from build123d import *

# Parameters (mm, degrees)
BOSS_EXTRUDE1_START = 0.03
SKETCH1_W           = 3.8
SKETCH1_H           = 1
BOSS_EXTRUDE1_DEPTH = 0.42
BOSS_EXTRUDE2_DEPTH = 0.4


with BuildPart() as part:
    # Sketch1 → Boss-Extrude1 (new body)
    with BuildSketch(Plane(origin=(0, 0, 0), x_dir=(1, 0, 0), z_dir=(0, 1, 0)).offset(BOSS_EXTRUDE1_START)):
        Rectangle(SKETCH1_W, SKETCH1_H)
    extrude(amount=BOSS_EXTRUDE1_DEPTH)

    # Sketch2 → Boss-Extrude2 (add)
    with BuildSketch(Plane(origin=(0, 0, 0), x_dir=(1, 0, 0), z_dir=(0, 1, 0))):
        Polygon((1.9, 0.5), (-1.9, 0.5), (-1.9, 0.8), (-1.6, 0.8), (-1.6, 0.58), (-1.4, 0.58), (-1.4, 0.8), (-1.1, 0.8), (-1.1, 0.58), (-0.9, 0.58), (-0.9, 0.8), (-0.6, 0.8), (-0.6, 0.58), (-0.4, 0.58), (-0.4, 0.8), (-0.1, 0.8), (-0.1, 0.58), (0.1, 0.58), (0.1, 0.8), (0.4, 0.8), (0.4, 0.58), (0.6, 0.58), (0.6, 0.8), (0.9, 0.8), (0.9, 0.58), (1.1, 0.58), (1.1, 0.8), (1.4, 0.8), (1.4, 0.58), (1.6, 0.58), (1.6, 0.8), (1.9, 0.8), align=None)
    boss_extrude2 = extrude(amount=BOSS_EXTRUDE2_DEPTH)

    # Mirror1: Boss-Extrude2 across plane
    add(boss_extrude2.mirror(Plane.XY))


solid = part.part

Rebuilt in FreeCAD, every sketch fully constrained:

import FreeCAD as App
import Part
import Sketcher
from FreeCAD import Vector
Q = App.Units.Quantity

doc = App.newDocument("Part")
body = doc.addObject("PartDesign::Body", "Body")

# Sketch on XZ plane
sketch1 = body.newObject("Sketcher::SketchObject", "Sketch")
sketch1.AttachmentSupport = (doc.getObject("XZ_Plane"), [""])
sketch1.MapMode = "FlatFace"
sketch1.AttachmentOffset = App.Placement(Vector(0, 0, -0.03), App.Rotation())
sketch1.addGeometry(Part.LineSegment(Vector(-1.9, -0.5, 0), Vector(-1.9, 0.5, 0)), False)
sketch1.addGeometry(Part.LineSegment(Vector(-1.9, 0.5, 0), Vector(1.9, 0.5, 0)), False)
sketch1.addGeometry(Part.LineSegment(Vector(1.9, 0.5, 0), Vector(1.9, -0.5, 0)), False)
sketch1.addGeometry(Part.LineSegment(Vector(1.9, -0.5, 0), Vector(-1.9, -0.5, 0)), False)
sketch1.addConstraint(Sketcher.Constraint("Coincident", 0, 2, 1, 1))
sketch1.addConstraint(Sketcher.Constraint("Coincident", 1, 2, 2, 1))
sketch1.addConstraint(Sketcher.Constraint("Coincident", 2, 2, 3, 1))
sketch1.addConstraint(Sketcher.Constraint("Coincident", 3, 2, 0, 1))
sketch1.addConstraint(Sketcher.Constraint("Vertical", 0))
sketch1.addConstraint(Sketcher.Constraint("Horizontal", 1))
sketch1.addConstraint(Sketcher.Constraint("Vertical", 2))
sketch1.addConstraint(Sketcher.Constraint("Horizontal", 3))
sketch1.addConstraint(Sketcher.Constraint("Symmetric", 0, 2, 2, 2, -1, 1))
sketch1.addConstraint(Sketcher.Constraint("DistanceY", 0, 1, 0, 2, Q("1 mm")))
sketch1.addConstraint(Sketcher.Constraint("DistanceX", 1, 1, 1, 2, Q("3.8 mm")))
pad1 = body.newObject("PartDesign::Pad", "Pad")
pad1.Profile = sketch1
pad1.Length = 0.42
pad1.Reversed = True

# Sketch on XZ plane
sketch2 = body.newObject("Sketcher::SketchObject", "Sketch001")
sketch2.AttachmentSupport = (doc.getObject("XZ_Plane"), [""])
sketch2.MapMode = "FlatFace"
sketch2.addGeometry(Part.LineSegment(Vector(-1.9, -0.5, 0), Vector(1.9, -0.5, 0)), False)
sketch2.addGeometry(Part.LineSegment(Vector(1.9, -0.5, 0), Vector(1.9, -0.8, 0)), False)
sketch2.addGeometry(Part.LineSegment(Vector(1.9, -0.8, 0), Vector(1.6, -0.8, 0)), False)
sketch2.addGeometry(Part.LineSegment(Vector(1.6, -0.8, 0), Vector(1.6, -0.58, 0)), False)
sketch2.addGeometry(Part.LineSegment(Vector(1.6, -0.58, 0), Vector(1.4, -0.58, 0)), False)
sketch2.addGeometry(Part.LineSegment(Vector(1.4, -0.58, 0), Vector(1.4, -0.8, 0)), False)
sketch2.addGeometry(Part.LineSegment(Vector(1.4, -0.8, 0), Vector(1.1, -0.8, 0)), False)
sketch2.addGeometry(Part.LineSegment(Vector(1.1, -0.8, 0), Vector(1.1, -0.58, 0)), False)
sketch2.addGeometry(Part.LineSegment(Vector(1.1, -0.58, 0), Vector(0.9, -0.58, 0)), False)
sketch2.addGeometry(Part.LineSegment(Vector(0.9, -0.58, 0), Vector(0.9, -0.8, 0)), False)
sketch2.addGeometry(Part.LineSegment(Vector(0.9, -0.8, 0), Vector(0.6, -0.8, 0)), False)
sketch2.addGeometry(Part.LineSegment(Vector(0.6, -0.8, 0), Vector(0.6, -0.58, 0)), False)
sketch2.addGeometry(Part.LineSegment(Vector(0.6, -0.58, 0), Vector(0.4, -0.58, 0)), False)
sketch2.addGeometry(Part.LineSegment(Vector(0.4, -0.58, 0), Vector(0.4, -0.8, 0)), False)
sketch2.addGeometry(Part.LineSegment(Vector(0.4, -0.8, 0), Vector(0.1, -0.8, 0)), False)
sketch2.addGeometry(Part.LineSegment(Vector(0.1, -0.8, 0), Vector(0.1, -0.58, 0)), False)
sketch2.addGeometry(Part.LineSegment(Vector(0.1, -0.58, 0), Vector(-0.1, -0.58, 0)), False)
sketch2.addGeometry(Part.LineSegment(Vector(-0.1, -0.58, 0), Vector(-0.1, -0.8, 0)), False)
sketch2.addGeometry(Part.LineSegment(Vector(-0.1, -0.8, 0), Vector(-0.4, -0.8, 0)), False)
sketch2.addGeometry(Part.LineSegment(Vector(-0.4, -0.8, 0), Vector(-0.4, -0.58, 0)), False)
sketch2.addGeometry(Part.LineSegment(Vector(-0.4, -0.58, 0), Vector(-0.6, -0.58, 0)), False)
sketch2.addGeometry(Part.LineSegment(Vector(-0.6, -0.58, 0), Vector(-0.6, -0.8, 0)), False)
sketch2.addGeometry(Part.LineSegment(Vector(-0.6, -0.8, 0), Vector(-0.9, -0.8, 0)), False)
sketch2.addGeometry(Part.LineSegment(Vector(-0.9, -0.8, 0), Vector(-0.9, -0.58, 0)), False)
sketch2.addGeometry(Part.LineSegment(Vector(-0.9, -0.58, 0), Vector(-1.1, -0.58, 0)), False)
sketch2.addGeometry(Part.LineSegment(Vector(-1.1, -0.58, 0), Vector(-1.1, -0.8, 0)), False)
sketch2.addGeometry(Part.LineSegment(Vector(-1.1, -0.8, 0), Vector(-1.4, -0.8, 0)), False)
sketch2.addGeometry(Part.LineSegment(Vector(-1.4, -0.8, 0), Vector(-1.4, -0.58, 0)), False)
sketch2.addGeometry(Part.LineSegment(Vector(-1.4, -0.58, 0), Vector(-1.6, -0.58, 0)), False)
sketch2.addGeometry(Part.LineSegment(Vector(-1.6, -0.58, 0), Vector(-1.6, -0.8, 0)), False)
sketch2.addGeometry(Part.LineSegment(Vector(-1.6, -0.8, 0), Vector(-1.9, -0.8, 0)), False)
sketch2.addGeometry(Part.LineSegment(Vector(-1.9, -0.8, 0), Vector(-1.9, -0.5, 0)), False)
sketch2.addConstraint(Sketcher.Constraint("Coincident", 0, 2, 1, 1))
sketch2.addConstraint(Sketcher.Constraint("Coincident", 1, 2, 2, 1))
sketch2.addConstraint(Sketcher.Constraint("Coincident", 2, 2, 3, 1))
sketch2.addConstraint(Sketcher.Constraint("Coincident", 3, 2, 4, 1))
sketch2.addConstraint(Sketcher.Constraint("Coincident", 4, 2, 5, 1))
sketch2.addConstraint(Sketcher.Constraint("Coincident", 5, 2, 6, 1))
sketch2.addConstraint(Sketcher.Constraint("Coincident", 6, 2, 7, 1))
sketch2.addConstraint(Sketcher.Constraint("Coincident", 7, 2, 8, 1))
sketch2.addConstraint(Sketcher.Constraint("Coincident", 8, 2, 9, 1))
sketch2.addConstraint(Sketcher.Constraint("Coincident", 9, 2, 10, 1))
sketch2.addConstraint(Sketcher.Constraint("Coincident", 10, 2, 11, 1))
sketch2.addConstraint(Sketcher.Constraint("Coincident", 11, 2, 12, 1))
sketch2.addConstraint(Sketcher.Constraint("Coincident", 12, 2, 13, 1))
sketch2.addConstraint(Sketcher.Constraint("Coincident", 13, 2, 14, 1))
sketch2.addConstraint(Sketcher.Constraint("Coincident", 14, 2, 15, 1))
sketch2.addConstraint(Sketcher.Constraint("Coincident", 15, 2, 16, 1))
sketch2.addConstraint(Sketcher.Constraint("Coincident", 16, 2, 17, 1))
sketch2.addConstraint(Sketcher.Constraint("Coincident", 17, 2, 18, 1))
sketch2.addConstraint(Sketcher.Constraint("Coincident", 18, 2, 19, 1))
sketch2.addConstraint(Sketcher.Constraint("Coincident", 19, 2, 20, 1))
sketch2.addConstraint(Sketcher.Constraint("Coincident", 20, 2, 21, 1))
sketch2.addConstraint(Sketcher.Constraint("Coincident", 21, 2, 22, 1))
sketch2.addConstraint(Sketcher.Constraint("Coincident", 22, 2, 23, 1))
sketch2.addConstraint(Sketcher.Constraint("Coincident", 23, 2, 24, 1))
sketch2.addConstraint(Sketcher.Constraint("Coincident", 24, 2, 25, 1))
sketch2.addConstraint(Sketcher.Constraint("Coincident", 25, 2, 26, 1))
sketch2.addConstraint(Sketcher.Constraint("Coincident", 26, 2, 27, 1))
sketch2.addConstraint(Sketcher.Constraint("Coincident", 27, 2, 28, 1))
sketch2.addConstraint(Sketcher.Constraint("Coincident", 28, 2, 29, 1))
sketch2.addConstraint(Sketcher.Constraint("Coincident", 29, 2, 30, 1))
sketch2.addConstraint(Sketcher.Constraint("Coincident", 30, 2, 31, 1))
sketch2.addConstraint(Sketcher.Constraint("Coincident", 31, 2, 0, 1))
sketch2.addConstraint(Sketcher.Constraint("Horizontal", 0))
sketch2.addConstraint(Sketcher.Constraint("Vertical", 1))
sketch2.addConstraint(Sketcher.Constraint("Horizontal", 2))
sketch2.addConstraint(Sketcher.Constraint("Vertical", 3))
sketch2.addConstraint(Sketcher.Constraint("Horizontal", 4))
sketch2.addConstraint(Sketcher.Constraint("Vertical", 5))
sketch2.addConstraint(Sketcher.Constraint("Horizontal", 6))
sketch2.addConstraint(Sketcher.Constraint("Vertical", 7))
sketch2.addConstraint(Sketcher.Constraint("Horizontal", 8))
sketch2.addConstraint(Sketcher.Constraint("Vertical", 9))
sketch2.addConstraint(Sketcher.Constraint("Horizontal", 10))
sketch2.addConstraint(Sketcher.Constraint("Vertical", 11))
sketch2.addConstraint(Sketcher.Constraint("Horizontal", 12))
sketch2.addConstraint(Sketcher.Constraint("Vertical", 13))
sketch2.addConstraint(Sketcher.Constraint("Horizontal", 14))
sketch2.addConstraint(Sketcher.Constraint("Vertical", 15))
sketch2.addConstraint(Sketcher.Constraint("Horizontal", 16))
sketch2.addConstraint(Sketcher.Constraint("Vertical", 17))
sketch2.addConstraint(Sketcher.Constraint("Horizontal", 18))
sketch2.addConstraint(Sketcher.Constraint("Vertical", 19))
sketch2.addConstraint(Sketcher.Constraint("Horizontal", 20))
sketch2.addConstraint(Sketcher.Constraint("Vertical", 21))
sketch2.addConstraint(Sketcher.Constraint("Horizontal", 22))
sketch2.addConstraint(Sketcher.Constraint("Vertical", 23))
sketch2.addConstraint(Sketcher.Constraint("Horizontal", 24))
sketch2.addConstraint(Sketcher.Constraint("Vertical", 25))
sketch2.addConstraint(Sketcher.Constraint("Horizontal", 26))
sketch2.addConstraint(Sketcher.Constraint("Vertical", 27))
sketch2.addConstraint(Sketcher.Constraint("Horizontal", 28))
sketch2.addConstraint(Sketcher.Constraint("Vertical", 29))
sketch2.addConstraint(Sketcher.Constraint("Horizontal", 30))
sketch2.addConstraint(Sketcher.Constraint("Vertical", 31))
sketch2.addConstraint(Sketcher.Constraint("Symmetric", 14, 2, 17, 2, -2))
sketch2.addConstraint(Sketcher.Constraint("Symmetric", 12, 2, 19, 2, -2))
sketch2.addConstraint(Sketcher.Constraint("Symmetric", 10, 2, 21, 2, -2))
sketch2.addConstraint(Sketcher.Constraint("Symmetric", 8, 2, 23, 2, -2))
sketch2.addConstraint(Sketcher.Constraint("Symmetric", 6, 2, 25, 2, -2))
sketch2.addConstraint(Sketcher.Constraint("Symmetric", 4, 2, 27, 2, -2))
sketch2.addConstraint(Sketcher.Constraint("Symmetric", 2, 2, 29, 2, -2))
sketch2.addConstraint(Sketcher.Constraint("Horizontal", 2, 2, 5, 2))
sketch2.addConstraint(Sketcher.Constraint("Horizontal", 4, 2, 7, 2))
sketch2.addConstraint(Sketcher.Constraint("Horizontal", 6, 2, 9, 2))
sketch2.addConstraint(Sketcher.Constraint("Horizontal", 8, 2, 11, 2))
sketch2.addConstraint(Sketcher.Constraint("Horizontal", 10, 2, 13, 2))
sketch2.addConstraint(Sketcher.Constraint("Horizontal", 12, 2, 15, 2))
sketch2.addConstraint(Sketcher.Constraint("Equal", 2, 6))
sketch2.addConstraint(Sketcher.Constraint("Equal", 4, 8))
sketch2.addConstraint(Sketcher.Constraint("Equal", 6, 10))
sketch2.addConstraint(Sketcher.Constraint("Equal", 8, 12))
sketch2.addConstraint(Sketcher.Constraint("Equal", 10, 14))
sketch2.addConstraint(Sketcher.Constraint("Equal", 12, 16))
sketch2.addConstraint(Sketcher.Constraint("Equal", 26, 30))
sketch2.addConstraint(Sketcher.Constraint("Equal", 30, 1))
sketch2.addConstraint(Sketcher.Constraint("DistanceX", 0, 1, 0, 2, Q("3.8 mm")))
sketch2.addConstraint(Sketcher.Constraint("DistanceX", 2, 2, 2, 1, Q("0.3 mm")))
sketch2.addConstraint(Sketcher.Constraint("DistanceY", 3, 1, 3, 2, Q("0.22 mm")))
sketch2.addConstraint(Sketcher.Constraint("DistanceY", 0, 2, -1, 1, Q("0.5 mm")))
pad2 = body.newObject("PartDesign::Pad", "Pad001")
pad2.Profile = sketch2
pad2.Length = 0.4
pad2.Reversed = True
doc.recompute()

mirrored = body.newObject("PartDesign::Mirrored", "Mirrored")
mirrored.Originals = [pad2]
mirrored.MirrorPlane = (doc.getObject("XY_Plane"), [""])
body.Tip = mirrored

doc.recompute()
